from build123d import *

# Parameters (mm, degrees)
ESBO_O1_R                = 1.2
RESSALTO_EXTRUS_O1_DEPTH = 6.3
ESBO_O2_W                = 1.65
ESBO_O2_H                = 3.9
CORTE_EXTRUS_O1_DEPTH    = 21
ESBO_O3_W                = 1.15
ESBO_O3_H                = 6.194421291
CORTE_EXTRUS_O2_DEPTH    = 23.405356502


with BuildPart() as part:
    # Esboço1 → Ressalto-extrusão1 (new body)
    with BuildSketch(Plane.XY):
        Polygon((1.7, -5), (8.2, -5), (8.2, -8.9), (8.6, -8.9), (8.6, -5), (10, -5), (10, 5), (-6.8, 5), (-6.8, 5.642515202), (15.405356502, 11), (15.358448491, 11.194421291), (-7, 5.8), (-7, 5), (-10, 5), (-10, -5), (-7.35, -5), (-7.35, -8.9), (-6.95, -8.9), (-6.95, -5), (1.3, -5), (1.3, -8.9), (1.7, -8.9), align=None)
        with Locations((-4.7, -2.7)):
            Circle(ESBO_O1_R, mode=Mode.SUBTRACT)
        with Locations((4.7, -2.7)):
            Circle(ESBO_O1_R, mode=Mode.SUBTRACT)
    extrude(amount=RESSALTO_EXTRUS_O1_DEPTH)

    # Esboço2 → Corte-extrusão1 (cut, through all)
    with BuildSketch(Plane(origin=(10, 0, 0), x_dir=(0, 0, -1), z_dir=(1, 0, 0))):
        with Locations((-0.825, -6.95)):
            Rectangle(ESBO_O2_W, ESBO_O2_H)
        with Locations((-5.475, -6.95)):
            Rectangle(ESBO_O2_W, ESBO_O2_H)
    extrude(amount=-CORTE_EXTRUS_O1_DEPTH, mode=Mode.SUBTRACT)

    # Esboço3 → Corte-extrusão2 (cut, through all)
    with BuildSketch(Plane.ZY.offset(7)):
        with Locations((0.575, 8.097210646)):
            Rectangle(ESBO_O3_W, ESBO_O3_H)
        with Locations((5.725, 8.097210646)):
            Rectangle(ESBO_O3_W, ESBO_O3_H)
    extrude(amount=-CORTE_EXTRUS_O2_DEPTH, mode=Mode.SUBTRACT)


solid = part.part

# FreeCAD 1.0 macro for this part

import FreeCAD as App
import Part
import Sketcher

doc = App.newDocument("Part")
body = doc.addObject("PartDesign::Body", "Body")

sketch1 = doc.addObject("Sketcher::SketchObject", "Sketch")
body.addObject(sketch1)
sketch1.AttachmentSupport = (doc.XY_Plane, [""])
sketch1.MapMode = "FlatFace"
sketch1.addGeometry([
    Part.LineSegment(App.Vector(1.7, -5, 0), App.Vector(8.2, -5, 0)),
    Part.LineSegment(App.Vector(8.2, -5, 0), App.Vector(8.2, -8.9, 0)),
    Part.LineSegment(App.Vector(8.2, -8.9, 0), App.Vector(8.6, -8.9, 0)),
    Part.LineSegment(App.Vector(8.6, -8.9, 0), App.Vector(8.6, -5, 0)),
    Part.LineSegment(App.Vector(8.6, -5, 0), App.Vector(10, -5, 0)),
    Part.LineSegment(App.Vector(10, -5, 0), App.Vector(10, 5, 0)),
    Part.LineSegment(App.Vector(10, 5, 0), App.Vector(-6.8, 5, 0)),
    Part.LineSegment(App.Vector(-6.8, 5, 0), App.Vector(-6.8, 5.64, 0)),
    Part.LineSegment(App.Vector(-6.8, 5.64, 0), App.Vector(15.41, 11, 0)),
    Part.LineSegment(App.Vector(15.41, 11, 0), App.Vector(15.36, 11.19, 0)),
    Part.LineSegment(App.Vector(15.36, 11.19, 0), App.Vector(-7, 5.8, 0)),
    Part.LineSegment(App.Vector(-7, 5.8, 0), App.Vector(-7, 5, 0)),
    Part.LineSegment(App.Vector(-7, 5, 0), App.Vector(-10, 5, 0)),
    Part.LineSegment(App.Vector(-10, 5, 0), App.Vector(-10, -5, 0)),
    Part.LineSegment(App.Vector(-10, -5, 0), App.Vector(-7.35, -5, 0)),
    Part.LineSegment(App.Vector(-7.35, -5, 0), App.Vector(-7.35, -8.9, 0)),
    Part.LineSegment(App.Vector(-7.35, -8.9, 0), App.Vector(-6.95, -8.9, 0)),
    Part.LineSegment(App.Vector(-6.95, -8.9, 0), App.Vector(-6.95, -5, 0)),
    Part.LineSegment(App.Vector(-6.95, -5, 0), App.Vector(1.3, -5, 0)),
    Part.LineSegment(App.Vector(1.3, -5, 0), App.Vector(1.3, -8.9, 0)),
    Part.LineSegment(App.Vector(1.3, -8.9, 0), App.Vector(1.7, -8.9, 0)),
    Part.LineSegment(App.Vector(1.7, -8.9, 0), App.Vector(1.7, -5, 0)),
    Part.Circle(App.Vector(-4.7, -2.7, 0), App.Vector(0, 0, 1), 1.2),
    Part.Circle(App.Vector(4.7, -2.7, 0), App.Vector(0, 0, 1), 1.2),
], False)
sketch1.addConstraint([
    Sketcher.Constraint("Coincident", 0, 2, 1, 1),
    Sketcher.Constraint("Coincident", 1, 2, 2, 1),
    Sketcher.Constraint("Coincident", 2, 2, 3, 1),
    Sketcher.Constraint("Coincident", 3, 2, 4, 1),
    Sketcher.Constraint("Coincident", 4, 2, 5, 1),
    Sketcher.Constraint("Coincident", 5, 2, 6, 1),
    Sketcher.Constraint("Coincident", 6, 2, 7, 1),
    Sketcher.Constraint("Coincident", 7, 2, 8, 1),
    Sketcher.Constraint("Coincident", 8, 2, 9, 1),
    Sketcher.Constraint("Coincident", 9, 2, 10, 1),
    Sketcher.Constraint("Coincident", 10, 2, 11, 1),
    Sketcher.Constraint("Coincident", 11, 2, 12, 1),
    Sketcher.Constraint("Coincident", 12, 2, 13, 1),
    Sketcher.Constraint("Coincident", 13, 2, 14, 1),
    Sketcher.Constraint("Coincident", 14, 2, 15, 1),
    Sketcher.Constraint("Coincident", 15, 2, 16, 1),
    Sketcher.Constraint("Coincident", 16, 2, 17, 1),
    Sketcher.Constraint("Coincident", 17, 2, 18, 1),
    Sketcher.Constraint("Coincident", 18, 2, 19, 1),
    Sketcher.Constraint("Coincident", 19, 2, 20, 1),
    Sketcher.Constraint("Coincident", 20, 2, 21, 1),
    Sketcher.Constraint("Coincident", 21, 2, 0, 1),
    Sketcher.Constraint("Horizontal", 0),
    Sketcher.Constraint("Vertical", 1),
    Sketcher.Constraint("Horizontal", 2),
    Sketcher.Constraint("Vertical", 3),
    Sketcher.Constraint("Horizontal", 4),
    Sketcher.Constraint("Vertical", 5),
    Sketcher.Constraint("Horizontal", 6),
    Sketcher.Constraint("Vertical", 7),
    Sketcher.Constraint("Vertical", 11),
    Sketcher.Constraint("Horizontal", 12),
    Sketcher.Constraint("Vertical", 13),
    Sketcher.Constraint("Horizontal", 14),
    Sketcher.Constraint("Vertical", 15),
    Sketcher.Constraint("Horizontal", 16),
    Sketcher.Constraint("Vertical", 17),
    Sketcher.Constraint("Horizontal", 18),
    Sketcher.Constraint("Vertical", 19),
    Sketcher.Constraint("Horizontal", 20),
    Sketcher.Constraint("Vertical", 21),
    Sketcher.Constraint("Equal", 22, 23),
    Sketcher.Constraint("Symmetric", 4, 2, 12, 2, -1, 1),
    Sketcher.Constraint("Symmetric", 22, 3, 23, 3, -2),
    Sketcher.Constraint("Perpendicular", 8, 9),
    Sketcher.Constraint("Perpendicular", 9, 10),
    Sketcher.Constraint("Horizontal", 0, 2, 3, 2),
    Sketcher.Constraint("Horizontal", 6, 2, 11, 2),
    Sketcher.Constraint("Horizontal", 4, 2, 13, 2),
    Sketcher.Constraint("Horizontal", 2, 2, 15, 2),
    Sketcher.Constraint("Horizontal", 14, 2, 17, 2),
    Sketcher.Constraint("Horizontal", 16, 2, 19, 2),
    Sketcher.Constraint("Equal", 2, 16),
    Sketcher.Constraint("Equal", 16, 20),
    Sketcher.Constraint("Diameter", 22, 2.4),
    Sketcher.Constraint("DistanceX", 12, 2, 12, 1, 3.0),
    Sketcher.Constraint("DistanceY", 5, 1, 5, 2, 10.0),
    Sketcher.Constraint("Distance", 10, 23.0),
    Sketcher.Constraint("DistanceX", 0, 1, 0, 2, 6.5),
    Sketcher.Constraint("DistanceX", 2, 1, 2, 2, 0.4),
    Sketcher.Constraint("DistanceX", 4, 1, 4, 2, 1.4),
    Sketcher.Constraint("DistanceX", 6, 2, 6, 1, 16.8),
    Sketcher.Constraint("DistanceY", 1, 2, 1, 1, 3.9),
    Sketcher.Constraint("DistanceY", 11, 2, 11, 1, 0.8),
    Sketcher.Constraint("DistanceX", -1, 1, 4, 2, 10.0),
    Sketcher.Constraint("DistanceY", -1, 1, 8, 2, 11.0),
    Sketcher.Constraint("DistanceX", 22, 3, 18, 2, 6.0),
    Sketcher.Constraint("Distance", 9, 0.2),
    Sketcher.Constraint("DistanceX", 14, 1, 14, 2, 2.65),
    Sketcher.Constraint("DistanceY", 22, 3, -1, 1, 2.7),
])
pad1 = doc.addObject("PartDesign::Pad", "Pad")
body.addObject(pad1)
pad1.Profile = sketch1
pad1.Length = 6.3

sketch2 = doc.addObject("Sketcher::SketchObject", "Sketch001")
body.addObject(sketch2)
sketch2.AttachmentSupport = (doc.YZ_Plane, [""])
sketch2.MapMode = "FlatFace"
sketch2.AttachmentOffset = App.Placement(App.Vector(0, 0, 10), App.Rotation())
sketch2.addGeometry([
    Part.LineSegment(App.Vector(-5, 1.6, 0), App.Vector(-8.9, 1.6, 0)),
    Part.LineSegment(App.Vector(-8.9, 1.6, 0), App.Vector(-8.9, 0, 0)),
    Part.LineSegment(App.Vector(-8.9, 0, 0), App.Vector(-5, 0, 0)),
    Part.LineSegment(App.Vector(-5, 0, 0), App.Vector(-5, 1.6, 0)),
    Part.LineSegment(App.Vector(-5, 6.3, 0), App.Vector(-8.9, 6.3, 0)),
    Part.LineSegment(App.Vector(-8.9, 6.3, 0), App.Vector(-8.9, 4.7, 0)),
    Part.LineSegment(App.Vector(-8.9, 4.7, 0), App.Vector(-5, 4.7, 0)),
    Part.LineSegment(App.Vector(-5, 4.7, 0), App.Vector(-5, 6.3, 0)),
], False)
sketch2.addConstraint([
    Sketcher.Constraint("Coincident", 0, 2, 1, 1),
    Sketcher.Constraint("Coincident", 1, 2, 2, 1),
    Sketcher.Constraint("Coincident", 2, 2, 3, 1),
    Sketcher.Constraint("Coincident", 3, 2, 0, 1),
    Sketcher.Constraint("Coincident", 4, 2, 5, 1),
    Sketcher.Constraint("Coincident", 5, 2, 6, 1),
    Sketcher.Constraint("Coincident", 6, 2, 7, 1),
    Sketcher.Constraint("Coincident", 7, 2, 4, 1),
    Sketcher.Constraint("Horizontal", 0),
    Sketcher.Constraint("Vertical", 1),
    Sketcher.Constraint("Horizontal", 2),
    Sketcher.Constraint("Vertical", 3),
    Sketcher.Constraint("Horizontal", 4),
    Sketcher.Constraint("Vertical", 5),
    Sketcher.Constraint("Horizontal", 6),
    Sketcher.Constraint("Vertical", 7),
    Sketcher.Constraint("PointOnObject", 1, 2, -1),
    Sketcher.Constraint("Vertical", 1, 2, 4, 2),
    Sketcher.Constraint("Vertical", 3, 2, 6, 2),
    Sketcher.Constraint("Equal", 3, 5),
    Sketcher.Constraint("DistanceX", 0, 2, 0, 1, 3.9),
    Sketcher.Constraint("DistanceX", 2, 2, -1, 1, 5.0),
    Sketcher.Constraint("DistanceY", 0, 2, 5, 2, 3.0),
    Sketcher.Constraint("DistanceY", 1, 2, 1, 1, 1.65),
])
pocket1 = doc.addObject("PartDesign::Pocket", "Pocket")
body.addObject(pocket1)
pocket1.Profile = sketch2
pocket1.Type = "ThroughAll"

sketch3 = doc.addObject("Sketcher::SketchObject", "Sketch002")
body.addObject(sketch3)
sketch3.AttachmentSupport = (doc.YZ_Plane, [""])
sketch3.MapMode = "FlatFace"
sketch3.AttachmentOffset = App.Placement(App.Vector(0, 0, -7), App.Rotation())
sketch3.addGeometry([
    Part.LineSegment(App.Vector(11.2, 0, 0), App.Vector(5, 0, 0)),
    Part.LineSegment(App.Vector(5, 0, 0), App.Vector(5, 1.1, 0)),
    Part.LineSegment(App.Vector(5, 1.1, 0), App.Vector(11.2, 1.1, 0)),
    Part.LineSegment(App.Vector(11.2, 1.1, 0), App.Vector(11.2, 0, 0)),
    Part.LineSegment(App.Vector(11.2, 5.2, 0), App.Vector(5, 5.2, 0)),
    Part.LineSegment(App.Vector(5, 5.2, 0), App.Vector(5, 6.3, 0)),
    Part.LineSegment(App.Vector(5, 6.3, 0), App.Vector(11.2, 6.3, 0)),
    Part.LineSegment(App.Vector(11.2, 6.3, 0), App.Vector(11.2, 5.2, 0)),
], False)
sketch3.addConstraint([
    Sketcher.Constraint("Coincident", 0, 2, 1, 1),
    Sketcher.Constraint("Coincident", 1, 2, 2, 1),
    Sketcher.Constraint("Coincident", 2, 2, 3, 1),
    Sketcher.Constraint("Coincident", 3, 2, 0, 1),
    Sketcher.Constraint("Coincident", 4, 2, 5, 1),
    Sketcher.Constraint("Coincident", 5, 2, 6, 1),
    Sketcher.Constraint("Coincident", 6, 2, 7, 1),
    Sketcher.Constraint("Coincident", 7, 2, 4, 1),
    Sketcher.Constraint("Horizontal", 0),
    Sketcher.Constraint("Vertical", 1),
    Sketcher.Constraint("Horizontal", 2),
    Sketcher.Constraint("Vertical", 3),
    Sketcher.Constraint("Horizontal", 4),
    Sketcher.Constraint("Vertical", 5),
    Sketcher.Constraint("Horizontal", 6),
    Sketcher.Constraint("Vertical", 7),
    Sketcher.Constraint("PointOnObject", 0, 2, -1),
    Sketcher.Constraint("Vertical", 1, 2, 4, 2),
    Sketcher.Constraint("Vertical", 3, 2, 6, 2),
    Sketcher.Constraint("Equal", 3, 5),
    Sketcher.Constraint("DistanceX", -1, 1, 0, 2, 5.0),
    Sketcher.Constraint("DistanceY", 1, 2, 4, 2, 4.0),
    Sketcher.Constraint("DistanceY", 1, 1, 1, 2, 1.15),
    Sketcher.Constraint("DistanceX", 0, 2, 0, 1, 6.194421),
])
pocket2 = doc.addObject("PartDesign::Pocket", "Pocket001")
body.addObject(pocket2)
pocket2.Profile = sketch3
pocket2.Type = "ThroughAll"
pocket2.Reversed = True

doc.recompute()
